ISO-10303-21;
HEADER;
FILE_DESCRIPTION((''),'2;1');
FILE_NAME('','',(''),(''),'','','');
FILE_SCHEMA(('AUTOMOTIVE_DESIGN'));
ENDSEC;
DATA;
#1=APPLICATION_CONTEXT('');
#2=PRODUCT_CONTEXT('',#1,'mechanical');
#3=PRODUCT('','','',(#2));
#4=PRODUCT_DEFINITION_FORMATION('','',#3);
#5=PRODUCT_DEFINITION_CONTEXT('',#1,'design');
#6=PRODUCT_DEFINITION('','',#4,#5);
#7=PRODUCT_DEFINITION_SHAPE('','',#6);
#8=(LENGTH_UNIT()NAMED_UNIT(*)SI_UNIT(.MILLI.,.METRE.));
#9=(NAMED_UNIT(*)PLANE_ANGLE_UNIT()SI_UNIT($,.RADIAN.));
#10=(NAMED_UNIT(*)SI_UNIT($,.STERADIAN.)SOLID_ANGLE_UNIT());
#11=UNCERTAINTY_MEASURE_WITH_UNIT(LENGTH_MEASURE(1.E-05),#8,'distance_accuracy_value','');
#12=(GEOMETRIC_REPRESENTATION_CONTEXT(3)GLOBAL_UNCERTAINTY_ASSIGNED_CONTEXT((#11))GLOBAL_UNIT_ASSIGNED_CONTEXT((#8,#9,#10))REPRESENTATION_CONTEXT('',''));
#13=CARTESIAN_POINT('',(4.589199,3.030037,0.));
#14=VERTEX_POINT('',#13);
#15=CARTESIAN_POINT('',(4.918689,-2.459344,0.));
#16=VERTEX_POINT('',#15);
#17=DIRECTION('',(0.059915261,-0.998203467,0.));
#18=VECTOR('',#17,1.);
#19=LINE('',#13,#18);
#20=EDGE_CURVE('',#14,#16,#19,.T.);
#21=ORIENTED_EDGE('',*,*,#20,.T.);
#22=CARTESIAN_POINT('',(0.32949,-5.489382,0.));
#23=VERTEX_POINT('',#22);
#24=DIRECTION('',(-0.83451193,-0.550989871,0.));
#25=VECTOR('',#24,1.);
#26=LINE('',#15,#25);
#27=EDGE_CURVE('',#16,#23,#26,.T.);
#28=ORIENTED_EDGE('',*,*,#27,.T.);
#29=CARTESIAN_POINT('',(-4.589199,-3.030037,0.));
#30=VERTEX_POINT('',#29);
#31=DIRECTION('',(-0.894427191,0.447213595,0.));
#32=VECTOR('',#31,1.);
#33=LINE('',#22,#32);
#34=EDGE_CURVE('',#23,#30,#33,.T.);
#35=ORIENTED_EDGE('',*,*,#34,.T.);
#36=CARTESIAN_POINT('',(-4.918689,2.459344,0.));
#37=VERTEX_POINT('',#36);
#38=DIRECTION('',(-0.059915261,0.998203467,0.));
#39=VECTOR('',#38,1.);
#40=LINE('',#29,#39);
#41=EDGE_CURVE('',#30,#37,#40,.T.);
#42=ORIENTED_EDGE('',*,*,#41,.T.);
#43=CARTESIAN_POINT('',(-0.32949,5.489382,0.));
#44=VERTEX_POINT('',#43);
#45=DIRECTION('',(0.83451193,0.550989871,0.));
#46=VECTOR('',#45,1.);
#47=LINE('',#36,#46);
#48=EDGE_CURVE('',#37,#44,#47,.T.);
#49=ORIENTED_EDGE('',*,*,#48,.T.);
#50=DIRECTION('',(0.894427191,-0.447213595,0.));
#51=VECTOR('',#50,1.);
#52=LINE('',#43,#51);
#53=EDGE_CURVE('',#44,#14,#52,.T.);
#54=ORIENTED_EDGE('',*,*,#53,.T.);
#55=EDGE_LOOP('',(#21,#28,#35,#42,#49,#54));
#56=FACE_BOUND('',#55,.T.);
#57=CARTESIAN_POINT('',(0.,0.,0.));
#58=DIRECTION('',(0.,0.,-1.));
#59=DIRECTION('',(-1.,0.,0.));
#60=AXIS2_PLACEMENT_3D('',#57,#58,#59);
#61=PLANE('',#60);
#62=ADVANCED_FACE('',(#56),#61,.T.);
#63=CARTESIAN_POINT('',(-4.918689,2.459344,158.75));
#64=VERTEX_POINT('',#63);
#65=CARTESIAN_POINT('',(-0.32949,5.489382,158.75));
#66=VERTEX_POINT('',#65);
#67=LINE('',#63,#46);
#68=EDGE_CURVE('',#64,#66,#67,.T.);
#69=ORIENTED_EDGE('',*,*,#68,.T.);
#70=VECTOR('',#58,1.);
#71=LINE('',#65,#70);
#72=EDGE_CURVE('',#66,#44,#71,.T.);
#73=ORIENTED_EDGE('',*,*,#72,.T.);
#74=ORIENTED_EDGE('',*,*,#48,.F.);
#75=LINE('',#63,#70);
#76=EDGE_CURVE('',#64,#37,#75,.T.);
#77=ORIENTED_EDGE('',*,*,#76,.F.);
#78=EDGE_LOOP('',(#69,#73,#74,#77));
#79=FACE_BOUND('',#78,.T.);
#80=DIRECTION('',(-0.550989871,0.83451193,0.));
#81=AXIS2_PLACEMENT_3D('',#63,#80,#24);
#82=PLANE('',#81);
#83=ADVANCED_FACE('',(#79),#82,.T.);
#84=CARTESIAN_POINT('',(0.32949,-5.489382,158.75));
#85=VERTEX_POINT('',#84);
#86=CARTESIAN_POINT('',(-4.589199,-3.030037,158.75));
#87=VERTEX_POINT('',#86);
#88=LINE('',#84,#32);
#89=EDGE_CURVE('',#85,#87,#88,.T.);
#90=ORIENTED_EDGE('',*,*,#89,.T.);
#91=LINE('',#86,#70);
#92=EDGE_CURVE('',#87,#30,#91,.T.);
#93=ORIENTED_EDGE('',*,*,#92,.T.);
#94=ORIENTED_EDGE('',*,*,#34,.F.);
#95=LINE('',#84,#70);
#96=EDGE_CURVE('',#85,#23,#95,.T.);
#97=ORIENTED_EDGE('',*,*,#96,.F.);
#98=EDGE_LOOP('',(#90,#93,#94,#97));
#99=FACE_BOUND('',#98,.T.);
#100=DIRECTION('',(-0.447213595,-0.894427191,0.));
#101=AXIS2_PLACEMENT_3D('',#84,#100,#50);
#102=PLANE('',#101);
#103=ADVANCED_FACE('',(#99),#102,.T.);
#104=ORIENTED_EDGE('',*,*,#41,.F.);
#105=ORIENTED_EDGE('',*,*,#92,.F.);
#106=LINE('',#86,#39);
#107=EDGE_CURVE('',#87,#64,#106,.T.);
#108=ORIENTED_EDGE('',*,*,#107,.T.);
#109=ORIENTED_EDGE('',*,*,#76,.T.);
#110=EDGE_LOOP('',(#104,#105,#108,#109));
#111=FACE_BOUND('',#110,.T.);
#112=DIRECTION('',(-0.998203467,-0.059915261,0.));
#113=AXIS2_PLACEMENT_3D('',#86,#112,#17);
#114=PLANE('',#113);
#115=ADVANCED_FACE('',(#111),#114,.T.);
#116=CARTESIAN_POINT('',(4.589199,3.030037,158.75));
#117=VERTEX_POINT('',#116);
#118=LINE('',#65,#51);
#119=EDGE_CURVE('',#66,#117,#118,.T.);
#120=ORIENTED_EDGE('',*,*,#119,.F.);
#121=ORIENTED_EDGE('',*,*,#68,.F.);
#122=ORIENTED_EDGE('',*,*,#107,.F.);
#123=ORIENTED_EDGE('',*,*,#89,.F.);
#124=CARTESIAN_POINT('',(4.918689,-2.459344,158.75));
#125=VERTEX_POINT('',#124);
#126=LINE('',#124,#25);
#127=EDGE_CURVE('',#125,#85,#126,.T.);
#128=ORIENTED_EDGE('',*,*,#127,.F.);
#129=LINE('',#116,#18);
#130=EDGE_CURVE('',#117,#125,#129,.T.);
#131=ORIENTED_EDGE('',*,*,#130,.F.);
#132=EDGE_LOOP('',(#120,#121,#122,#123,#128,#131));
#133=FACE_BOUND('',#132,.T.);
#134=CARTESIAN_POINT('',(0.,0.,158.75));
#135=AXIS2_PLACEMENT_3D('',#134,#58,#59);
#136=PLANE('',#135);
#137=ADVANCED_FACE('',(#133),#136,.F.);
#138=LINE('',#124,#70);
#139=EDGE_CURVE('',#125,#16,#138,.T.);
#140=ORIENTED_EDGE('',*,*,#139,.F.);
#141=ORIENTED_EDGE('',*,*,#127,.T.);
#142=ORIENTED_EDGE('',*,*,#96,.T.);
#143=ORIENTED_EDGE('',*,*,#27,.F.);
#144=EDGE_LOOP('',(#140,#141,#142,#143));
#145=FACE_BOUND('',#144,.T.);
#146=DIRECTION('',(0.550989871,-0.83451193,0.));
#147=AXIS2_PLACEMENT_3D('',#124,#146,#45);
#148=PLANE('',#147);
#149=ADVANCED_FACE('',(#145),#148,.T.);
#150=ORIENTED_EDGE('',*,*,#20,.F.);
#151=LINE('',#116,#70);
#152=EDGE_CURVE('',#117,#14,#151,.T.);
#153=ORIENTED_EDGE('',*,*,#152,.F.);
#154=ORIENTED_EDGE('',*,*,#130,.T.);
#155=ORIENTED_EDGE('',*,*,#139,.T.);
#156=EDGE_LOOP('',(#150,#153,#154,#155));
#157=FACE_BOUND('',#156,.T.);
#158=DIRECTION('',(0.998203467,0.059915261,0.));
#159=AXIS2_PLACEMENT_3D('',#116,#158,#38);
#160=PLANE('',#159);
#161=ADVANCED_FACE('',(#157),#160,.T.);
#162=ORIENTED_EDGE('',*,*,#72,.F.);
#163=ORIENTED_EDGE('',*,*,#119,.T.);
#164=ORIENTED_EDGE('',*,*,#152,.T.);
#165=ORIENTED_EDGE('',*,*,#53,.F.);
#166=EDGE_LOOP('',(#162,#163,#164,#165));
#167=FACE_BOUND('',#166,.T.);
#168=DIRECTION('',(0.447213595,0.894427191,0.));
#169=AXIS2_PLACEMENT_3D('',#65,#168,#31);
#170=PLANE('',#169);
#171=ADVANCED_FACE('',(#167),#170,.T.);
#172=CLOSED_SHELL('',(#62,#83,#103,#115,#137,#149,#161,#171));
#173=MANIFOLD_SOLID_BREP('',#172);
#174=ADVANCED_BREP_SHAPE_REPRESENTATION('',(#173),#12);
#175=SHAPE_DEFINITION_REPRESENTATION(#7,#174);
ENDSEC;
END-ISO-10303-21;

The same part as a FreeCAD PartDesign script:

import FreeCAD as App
import Part
import Sketcher
from FreeCAD import Vector


def add_polygon(sketch, points):
    """Adds a closed chain of lines whose ends are joined by coincident constraints."""
    first, n = sketch.GeometryCount, len(points)
    for a, b in zip(points, points[1:] + points[:1]):
        sketch.addGeometry(Part.LineSegment(App.Vector(*a, 0), App.Vector(*b, 0)), False)
    for i in range(n):
        sketch.addConstraint(Sketcher.Constraint("Coincident", first + i, 2, first + (i + 1) % n, 1))

doc = App.newDocument("Part")
params = doc.addObject("Spreadsheet::Sheet", "Params")
for row, (alias, value) in enumerate([
    ("pad1_length", "6.25 in"),
], start=1):
    params.set(f"A{row}", alias)
    params.set(f"B{row}", "=" + value)
    params.setAlias(f"B{row}", alias)

body = doc.addObject("PartDesign::Body", "Body")

sketch1 = doc.addObject("Sketcher::SketchObject", "Sketch")
body.addObject(sketch1)
sketch1.AttachmentSupport = (doc.XY_Plane, [""])
sketch1.MapMode = "FlatFace"
add_polygon(sketch1, [(-5, 2), (0, 5), (5, 3), (5, -2), (0, -5), (-5, -3)])
sketch1.addConstraint(Sketcher.Constraint("Symmetric", 0, 2, 3, 2, -1, 1))
sketch1.addConstraint(Sketcher.Constraint("Symmetric", 1, 2, 4, 2, -1, 1))
sketch1.addConstraint(Sketcher.Constraint("Symmetric", 2, 2, 5, 2, -1, 1))
sketch1.addConstraint(Sketcher.Constraint("Equal", 0, 1))
sketch1.addConstraint(Sketcher.Constraint("Equal", 1, 2))
sketch1.addConstraint(Sketcher.Constraint("DistanceX", -1, 1, 1, 2, 4.589199))
sketch1.addConstraint(Sketcher.Constraint("DistanceX", 3, 2, 2, 2, 4.589199))
sketch1.addConstraint(Sketcher.Constraint("Distance", 0, 5.499261))
sketch1.addConstraint(Sketcher.Constraint("DistanceX", 0, 2, -1, 1, 0.32949))
pad1 = doc.addObject("PartDesign::Pad", "Pad")
body.addObject(pad1)
pad1.Profile = sketch1
pad1.setExpression("Length", "Params.pad1_length")

doc.recompute()
